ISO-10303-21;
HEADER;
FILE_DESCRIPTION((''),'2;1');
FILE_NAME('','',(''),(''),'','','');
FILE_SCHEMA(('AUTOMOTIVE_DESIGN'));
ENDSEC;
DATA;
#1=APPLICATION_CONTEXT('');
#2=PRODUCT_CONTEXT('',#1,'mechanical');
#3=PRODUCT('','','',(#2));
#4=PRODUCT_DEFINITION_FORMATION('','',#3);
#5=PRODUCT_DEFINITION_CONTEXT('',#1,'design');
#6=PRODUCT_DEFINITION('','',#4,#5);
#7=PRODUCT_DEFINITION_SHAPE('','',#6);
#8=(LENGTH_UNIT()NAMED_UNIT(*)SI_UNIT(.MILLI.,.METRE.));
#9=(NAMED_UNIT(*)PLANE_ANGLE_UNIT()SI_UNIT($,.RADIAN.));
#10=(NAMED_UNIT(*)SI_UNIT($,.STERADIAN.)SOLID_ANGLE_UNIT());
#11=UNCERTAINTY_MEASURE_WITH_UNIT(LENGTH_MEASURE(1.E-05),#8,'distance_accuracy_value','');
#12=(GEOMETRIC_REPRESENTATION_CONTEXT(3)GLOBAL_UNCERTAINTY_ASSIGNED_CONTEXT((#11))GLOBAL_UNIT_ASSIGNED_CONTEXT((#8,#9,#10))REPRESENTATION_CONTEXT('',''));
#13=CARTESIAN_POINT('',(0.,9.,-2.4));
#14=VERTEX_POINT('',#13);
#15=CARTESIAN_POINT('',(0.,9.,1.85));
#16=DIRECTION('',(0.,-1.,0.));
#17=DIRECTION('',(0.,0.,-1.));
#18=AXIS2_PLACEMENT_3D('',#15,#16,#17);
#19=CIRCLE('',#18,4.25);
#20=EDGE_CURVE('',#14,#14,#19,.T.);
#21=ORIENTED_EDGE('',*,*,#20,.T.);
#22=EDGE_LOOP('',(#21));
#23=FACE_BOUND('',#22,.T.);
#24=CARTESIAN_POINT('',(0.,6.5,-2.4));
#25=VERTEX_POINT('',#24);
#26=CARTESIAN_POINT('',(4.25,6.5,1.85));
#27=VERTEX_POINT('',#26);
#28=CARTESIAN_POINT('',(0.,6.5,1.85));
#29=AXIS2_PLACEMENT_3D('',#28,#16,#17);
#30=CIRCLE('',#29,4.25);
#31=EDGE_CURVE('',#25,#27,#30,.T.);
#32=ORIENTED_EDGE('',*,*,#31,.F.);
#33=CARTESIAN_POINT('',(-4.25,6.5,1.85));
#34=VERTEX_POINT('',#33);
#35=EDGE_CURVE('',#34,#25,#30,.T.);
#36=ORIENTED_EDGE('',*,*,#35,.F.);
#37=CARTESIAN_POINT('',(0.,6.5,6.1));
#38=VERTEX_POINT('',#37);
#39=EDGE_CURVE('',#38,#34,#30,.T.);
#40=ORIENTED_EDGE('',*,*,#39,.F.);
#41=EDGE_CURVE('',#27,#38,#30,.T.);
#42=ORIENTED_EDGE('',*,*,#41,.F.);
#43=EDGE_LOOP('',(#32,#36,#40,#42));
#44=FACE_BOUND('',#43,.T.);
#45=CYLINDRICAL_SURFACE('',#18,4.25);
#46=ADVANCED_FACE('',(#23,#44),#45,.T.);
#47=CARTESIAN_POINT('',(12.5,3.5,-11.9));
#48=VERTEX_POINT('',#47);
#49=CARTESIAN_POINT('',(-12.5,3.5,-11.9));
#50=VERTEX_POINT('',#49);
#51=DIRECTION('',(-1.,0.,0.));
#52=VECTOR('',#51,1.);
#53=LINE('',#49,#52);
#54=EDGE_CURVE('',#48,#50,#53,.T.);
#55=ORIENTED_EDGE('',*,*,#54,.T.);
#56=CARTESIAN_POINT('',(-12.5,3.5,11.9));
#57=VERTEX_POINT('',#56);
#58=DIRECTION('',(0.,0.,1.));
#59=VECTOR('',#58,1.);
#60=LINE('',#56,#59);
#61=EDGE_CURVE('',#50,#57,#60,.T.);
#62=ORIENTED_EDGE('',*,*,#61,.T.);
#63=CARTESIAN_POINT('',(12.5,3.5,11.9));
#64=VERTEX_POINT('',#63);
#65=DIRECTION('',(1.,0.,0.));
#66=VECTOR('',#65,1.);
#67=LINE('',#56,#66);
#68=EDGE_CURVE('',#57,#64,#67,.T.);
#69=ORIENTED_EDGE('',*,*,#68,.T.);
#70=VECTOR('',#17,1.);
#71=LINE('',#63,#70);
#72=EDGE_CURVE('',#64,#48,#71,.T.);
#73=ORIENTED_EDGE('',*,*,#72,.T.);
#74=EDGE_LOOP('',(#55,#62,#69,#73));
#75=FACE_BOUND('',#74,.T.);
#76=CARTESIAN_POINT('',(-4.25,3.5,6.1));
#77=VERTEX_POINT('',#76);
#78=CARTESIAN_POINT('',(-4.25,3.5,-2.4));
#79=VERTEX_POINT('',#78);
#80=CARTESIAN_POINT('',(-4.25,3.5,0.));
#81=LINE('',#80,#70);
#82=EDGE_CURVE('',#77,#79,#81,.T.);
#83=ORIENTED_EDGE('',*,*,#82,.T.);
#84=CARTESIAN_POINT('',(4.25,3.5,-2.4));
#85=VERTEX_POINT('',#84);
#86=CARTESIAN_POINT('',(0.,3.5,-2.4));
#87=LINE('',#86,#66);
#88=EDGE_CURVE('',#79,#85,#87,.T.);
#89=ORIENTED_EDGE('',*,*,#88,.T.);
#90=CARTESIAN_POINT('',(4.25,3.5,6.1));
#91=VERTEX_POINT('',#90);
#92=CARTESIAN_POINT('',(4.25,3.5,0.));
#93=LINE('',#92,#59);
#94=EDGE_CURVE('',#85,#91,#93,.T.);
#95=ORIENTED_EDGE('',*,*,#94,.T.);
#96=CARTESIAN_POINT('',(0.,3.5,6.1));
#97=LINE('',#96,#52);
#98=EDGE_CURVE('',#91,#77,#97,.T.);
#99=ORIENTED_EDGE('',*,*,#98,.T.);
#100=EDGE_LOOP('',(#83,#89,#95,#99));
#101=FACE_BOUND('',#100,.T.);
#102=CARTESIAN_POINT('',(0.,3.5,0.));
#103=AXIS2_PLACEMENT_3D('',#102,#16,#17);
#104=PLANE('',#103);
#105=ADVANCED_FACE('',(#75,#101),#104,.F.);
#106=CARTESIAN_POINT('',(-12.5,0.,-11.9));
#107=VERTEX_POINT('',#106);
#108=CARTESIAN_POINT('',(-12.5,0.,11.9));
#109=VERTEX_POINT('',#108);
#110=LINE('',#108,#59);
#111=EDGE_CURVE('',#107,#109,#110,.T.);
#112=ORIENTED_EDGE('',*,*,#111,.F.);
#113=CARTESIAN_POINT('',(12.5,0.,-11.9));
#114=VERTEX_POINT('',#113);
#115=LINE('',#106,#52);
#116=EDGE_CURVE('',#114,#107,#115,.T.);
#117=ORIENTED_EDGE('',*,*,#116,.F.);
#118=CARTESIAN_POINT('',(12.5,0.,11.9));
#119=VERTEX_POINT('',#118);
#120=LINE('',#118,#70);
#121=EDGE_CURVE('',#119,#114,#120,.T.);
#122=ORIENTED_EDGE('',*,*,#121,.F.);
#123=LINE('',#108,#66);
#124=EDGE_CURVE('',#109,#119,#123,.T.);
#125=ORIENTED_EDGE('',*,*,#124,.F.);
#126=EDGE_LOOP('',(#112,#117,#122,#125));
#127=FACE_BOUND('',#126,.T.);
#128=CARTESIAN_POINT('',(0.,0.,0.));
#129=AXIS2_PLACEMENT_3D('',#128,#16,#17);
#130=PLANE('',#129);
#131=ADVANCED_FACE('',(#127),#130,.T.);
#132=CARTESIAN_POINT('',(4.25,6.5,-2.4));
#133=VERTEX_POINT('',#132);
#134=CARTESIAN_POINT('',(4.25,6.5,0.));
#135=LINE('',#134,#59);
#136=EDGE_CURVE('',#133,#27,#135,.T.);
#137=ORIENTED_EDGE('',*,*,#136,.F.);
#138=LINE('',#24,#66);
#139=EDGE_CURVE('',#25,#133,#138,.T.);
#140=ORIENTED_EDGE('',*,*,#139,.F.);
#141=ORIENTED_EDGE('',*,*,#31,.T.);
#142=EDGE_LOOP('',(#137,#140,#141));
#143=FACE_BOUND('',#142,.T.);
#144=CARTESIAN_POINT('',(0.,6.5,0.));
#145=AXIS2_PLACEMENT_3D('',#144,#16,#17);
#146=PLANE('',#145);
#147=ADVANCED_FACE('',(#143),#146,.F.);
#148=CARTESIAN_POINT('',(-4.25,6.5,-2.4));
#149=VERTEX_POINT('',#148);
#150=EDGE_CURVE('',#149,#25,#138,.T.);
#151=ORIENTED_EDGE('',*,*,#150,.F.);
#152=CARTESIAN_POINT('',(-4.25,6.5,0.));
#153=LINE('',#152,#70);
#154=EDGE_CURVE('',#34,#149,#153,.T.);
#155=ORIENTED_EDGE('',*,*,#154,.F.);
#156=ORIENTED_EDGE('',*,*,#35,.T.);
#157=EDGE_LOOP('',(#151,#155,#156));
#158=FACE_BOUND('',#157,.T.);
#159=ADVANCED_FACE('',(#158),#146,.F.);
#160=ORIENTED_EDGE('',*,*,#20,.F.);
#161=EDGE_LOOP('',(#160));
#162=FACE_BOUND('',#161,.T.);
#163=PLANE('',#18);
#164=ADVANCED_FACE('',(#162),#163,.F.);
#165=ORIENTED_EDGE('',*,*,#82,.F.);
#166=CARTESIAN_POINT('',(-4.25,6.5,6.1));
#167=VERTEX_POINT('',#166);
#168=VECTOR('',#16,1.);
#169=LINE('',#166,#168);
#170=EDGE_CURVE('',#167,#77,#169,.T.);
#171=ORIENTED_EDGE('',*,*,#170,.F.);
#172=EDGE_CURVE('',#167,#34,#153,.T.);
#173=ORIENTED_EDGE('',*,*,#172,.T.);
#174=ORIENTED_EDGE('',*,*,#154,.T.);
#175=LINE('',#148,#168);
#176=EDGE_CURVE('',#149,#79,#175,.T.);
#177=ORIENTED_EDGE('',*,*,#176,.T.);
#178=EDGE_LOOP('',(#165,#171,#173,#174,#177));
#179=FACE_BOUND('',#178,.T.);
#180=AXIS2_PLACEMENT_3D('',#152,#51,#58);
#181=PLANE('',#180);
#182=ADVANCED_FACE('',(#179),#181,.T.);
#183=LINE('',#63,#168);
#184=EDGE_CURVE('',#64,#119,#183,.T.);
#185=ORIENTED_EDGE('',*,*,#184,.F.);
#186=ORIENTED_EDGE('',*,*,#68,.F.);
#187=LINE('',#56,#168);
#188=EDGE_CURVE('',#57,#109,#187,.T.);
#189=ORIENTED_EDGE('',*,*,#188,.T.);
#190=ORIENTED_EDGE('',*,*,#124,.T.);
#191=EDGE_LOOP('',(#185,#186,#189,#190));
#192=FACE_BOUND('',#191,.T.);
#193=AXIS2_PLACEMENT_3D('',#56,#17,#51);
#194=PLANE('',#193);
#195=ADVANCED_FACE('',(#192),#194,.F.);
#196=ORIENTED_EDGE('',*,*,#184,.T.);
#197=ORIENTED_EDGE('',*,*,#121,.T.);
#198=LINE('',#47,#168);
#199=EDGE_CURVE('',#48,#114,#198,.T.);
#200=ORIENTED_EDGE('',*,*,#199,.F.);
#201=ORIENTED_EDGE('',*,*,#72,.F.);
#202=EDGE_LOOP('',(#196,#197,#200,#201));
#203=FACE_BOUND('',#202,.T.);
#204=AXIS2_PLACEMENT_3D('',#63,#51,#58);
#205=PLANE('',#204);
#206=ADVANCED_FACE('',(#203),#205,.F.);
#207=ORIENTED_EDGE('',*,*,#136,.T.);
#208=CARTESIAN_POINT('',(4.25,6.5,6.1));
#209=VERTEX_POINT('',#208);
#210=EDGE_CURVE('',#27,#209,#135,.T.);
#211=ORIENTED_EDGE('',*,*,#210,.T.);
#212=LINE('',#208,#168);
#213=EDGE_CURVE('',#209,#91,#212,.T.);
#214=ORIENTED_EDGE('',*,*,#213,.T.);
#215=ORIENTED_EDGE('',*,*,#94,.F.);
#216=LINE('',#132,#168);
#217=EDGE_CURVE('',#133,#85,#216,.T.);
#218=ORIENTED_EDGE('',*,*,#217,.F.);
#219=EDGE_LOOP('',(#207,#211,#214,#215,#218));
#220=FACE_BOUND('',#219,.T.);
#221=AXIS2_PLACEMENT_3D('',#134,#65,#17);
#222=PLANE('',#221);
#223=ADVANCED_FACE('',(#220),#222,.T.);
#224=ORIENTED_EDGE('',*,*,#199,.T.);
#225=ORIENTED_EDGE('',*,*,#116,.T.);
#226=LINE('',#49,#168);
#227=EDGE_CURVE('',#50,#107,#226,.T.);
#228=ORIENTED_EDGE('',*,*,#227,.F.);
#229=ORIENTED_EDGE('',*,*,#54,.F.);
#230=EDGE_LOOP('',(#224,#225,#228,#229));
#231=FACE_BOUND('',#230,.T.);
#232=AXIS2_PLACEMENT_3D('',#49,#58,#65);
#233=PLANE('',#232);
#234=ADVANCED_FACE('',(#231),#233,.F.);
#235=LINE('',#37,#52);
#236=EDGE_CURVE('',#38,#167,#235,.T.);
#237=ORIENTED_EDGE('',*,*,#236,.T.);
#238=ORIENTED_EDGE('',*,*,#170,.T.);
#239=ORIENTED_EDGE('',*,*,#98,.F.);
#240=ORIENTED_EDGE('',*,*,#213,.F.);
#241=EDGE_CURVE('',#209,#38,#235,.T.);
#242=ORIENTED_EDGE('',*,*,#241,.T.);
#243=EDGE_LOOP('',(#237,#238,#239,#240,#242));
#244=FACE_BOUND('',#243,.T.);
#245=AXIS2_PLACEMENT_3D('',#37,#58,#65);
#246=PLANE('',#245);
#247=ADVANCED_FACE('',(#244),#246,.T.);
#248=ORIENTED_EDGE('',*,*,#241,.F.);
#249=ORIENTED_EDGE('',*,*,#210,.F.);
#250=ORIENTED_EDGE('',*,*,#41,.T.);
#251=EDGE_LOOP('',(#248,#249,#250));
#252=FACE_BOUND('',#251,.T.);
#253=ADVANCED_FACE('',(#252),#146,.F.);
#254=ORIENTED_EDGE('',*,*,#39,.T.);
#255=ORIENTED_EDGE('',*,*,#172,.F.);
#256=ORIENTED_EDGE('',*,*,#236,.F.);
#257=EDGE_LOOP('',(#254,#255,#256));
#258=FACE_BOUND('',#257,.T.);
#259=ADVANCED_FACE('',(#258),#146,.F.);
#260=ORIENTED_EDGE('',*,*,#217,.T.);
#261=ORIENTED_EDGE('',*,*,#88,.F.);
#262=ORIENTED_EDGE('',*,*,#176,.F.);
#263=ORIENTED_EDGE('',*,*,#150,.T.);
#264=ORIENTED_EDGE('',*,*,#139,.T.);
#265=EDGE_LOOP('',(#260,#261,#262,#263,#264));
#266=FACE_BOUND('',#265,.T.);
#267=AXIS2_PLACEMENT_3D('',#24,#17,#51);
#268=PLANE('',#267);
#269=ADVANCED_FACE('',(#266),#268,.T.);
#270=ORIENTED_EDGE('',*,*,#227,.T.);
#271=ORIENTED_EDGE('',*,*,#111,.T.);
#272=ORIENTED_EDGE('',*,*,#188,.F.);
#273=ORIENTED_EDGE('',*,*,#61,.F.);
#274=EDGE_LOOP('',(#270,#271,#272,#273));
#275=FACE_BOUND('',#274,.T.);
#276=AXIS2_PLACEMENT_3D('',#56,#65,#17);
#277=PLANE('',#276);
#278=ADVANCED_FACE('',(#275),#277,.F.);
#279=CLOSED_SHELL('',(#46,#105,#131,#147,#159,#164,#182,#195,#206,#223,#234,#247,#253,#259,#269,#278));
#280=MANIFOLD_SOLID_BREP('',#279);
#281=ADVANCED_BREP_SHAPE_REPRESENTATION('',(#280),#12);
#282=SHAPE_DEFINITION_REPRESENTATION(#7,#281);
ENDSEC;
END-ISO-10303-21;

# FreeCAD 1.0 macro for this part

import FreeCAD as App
import Part
import Sketcher

doc = App.newDocument("Part")
body = doc.addObject("PartDesign::Body", "Body")

sketch1 = doc.addObject("Sketcher::SketchObject", "Sketch")
body.addObject(sketch1)
sketch1.AttachmentSupport = (doc.XZ_Plane, [""])
sketch1.MapMode = "FlatFace"
sketch1.addGeometry([
    Part.LineSegment(App.Vector(-12.5, -11.9, 0), App.Vector(-12.5, 11.9, 0)),
    Part.LineSegment(App.Vector(-12.5, 11.9, 0), App.Vector(12.5, 11.9, 0)),
    Part.LineSegment(App.Vector(12.5, 11.9, 0), App.Vector(12.5, -11.9, 0)),
    Part.LineSegment(App.Vector(12.5, -11.9, 0), App.Vector(-12.5, -11.9, 0)),
], False)
sketch1.addConstraint([
    Sketcher.Constraint("Coincident", 0, 2, 1, 1),
    Sketcher.Constraint("Coincident", 1, 2, 2, 1),
    Sketcher.Constraint("Coincident", 2, 2, 3, 1),
    Sketcher.Constraint("Coincident", 3, 2, 0, 1),
    Sketcher.Constraint("Vertical", 0),
    Sketcher.Constraint("Horizontal", 1),
    Sketcher.Constraint("Vertical", 2),
    Sketcher.Constraint("Horizontal", 3),
    Sketcher.Constraint("Symmetric", 0, 2, 2, 2, -1, 1),
    Sketcher.Constraint("DistanceX", 1, 1, 1, 2, 25.0),
    Sketcher.Constraint("DistanceY", 0, 1, 0, 2, 23.8),
])
pad1 = doc.addObject("PartDesign::Pad", "Pad")
body.addObject(pad1)
pad1.Profile = sketch1
pad1.Length = 3.5
pad1.Reversed = True

sketch2 = doc.addObject("Sketcher::SketchObject", "Sketch001")
body.addObject(sketch2)
sketch2.AttachmentSupport = (doc.XZ_Plane, [""])
sketch2.MapMode = "FlatFace"
sketch2.addGeometry([
    Part.LineSegment(App.Vector(-4.25, -2.4, 0), App.Vector(-4.25, 6.1, 0)),
    Part.LineSegment(App.Vector(-4.25, 6.1, 0), App.Vector(4.25, 6.1, 0)),
    Part.LineSegment(App.Vector(4.25, 6.1, 0), App.Vector(4.25, -2.4, 0)),
    Part.LineSegment(App.Vector(4.25, -2.4, 0), App.Vector(-4.25, -2.4, 0)),
], False)
sketch2.addConstraint([
    Sketcher.Constraint("Coincident", 0, 2, 1, 1),
    Sketcher.Constraint("Coincident", 1, 2, 2, 1),
    Sketcher.Constraint("Coincident", 2, 2, 3, 1),
    Sketcher.Constraint("Coincident", 3, 2, 0, 1),
    Sketcher.Constraint("Vertical", 0),
    Sketcher.Constraint("Horizontal", 1),
    Sketcher.Constraint("Vertical", 2),
    Sketcher.Constraint("Horizontal", 3),
    Sketcher.Constraint("Equal", 3, 0),
    Sketcher.Constraint("DistanceX", 1, 1, 1, 2, 8.5),
    Sketcher.Constraint("DistanceY", -1, 1, 0, 2, 6.1),
    Sketcher.Constraint("DistanceX", 0, 2, -1, 1, 4.25),
])
pad2 = doc.addObject("PartDesign::Pad", "Pad001")
body.addObject(pad2)
pad2.Profile = sketch2
pad2.Length = 6.5
pad2.Reversed = True

sketch3 = doc.addObject("Sketcher::SketchObject", "Sketch002")
body.addObject(sketch3)
sketch3.AttachmentSupport = (doc.XZ_Plane, [""])
sketch3.MapMode = "FlatFace"
sketch3.addGeometry(Part.Circle(App.Vector(0, 1.85, 0), App.Vector(0, 0, 1), 4.25), False)
sketch3.addConstraint([
    Sketcher.Constraint("PointOnObject", 0, 3, -2),
    Sketcher.Constraint("Diameter", 0, 8.5),
    Sketcher.Constraint("DistanceY", -1, 1, 0, 3, 1.85),
])
pad3 = doc.addObject("PartDesign::Pad", "Pad002")
body.addObject(pad3)
pad3.Profile = sketch3
pad3.Length = 9
pad3.Reversed = True

doc.recompute()
